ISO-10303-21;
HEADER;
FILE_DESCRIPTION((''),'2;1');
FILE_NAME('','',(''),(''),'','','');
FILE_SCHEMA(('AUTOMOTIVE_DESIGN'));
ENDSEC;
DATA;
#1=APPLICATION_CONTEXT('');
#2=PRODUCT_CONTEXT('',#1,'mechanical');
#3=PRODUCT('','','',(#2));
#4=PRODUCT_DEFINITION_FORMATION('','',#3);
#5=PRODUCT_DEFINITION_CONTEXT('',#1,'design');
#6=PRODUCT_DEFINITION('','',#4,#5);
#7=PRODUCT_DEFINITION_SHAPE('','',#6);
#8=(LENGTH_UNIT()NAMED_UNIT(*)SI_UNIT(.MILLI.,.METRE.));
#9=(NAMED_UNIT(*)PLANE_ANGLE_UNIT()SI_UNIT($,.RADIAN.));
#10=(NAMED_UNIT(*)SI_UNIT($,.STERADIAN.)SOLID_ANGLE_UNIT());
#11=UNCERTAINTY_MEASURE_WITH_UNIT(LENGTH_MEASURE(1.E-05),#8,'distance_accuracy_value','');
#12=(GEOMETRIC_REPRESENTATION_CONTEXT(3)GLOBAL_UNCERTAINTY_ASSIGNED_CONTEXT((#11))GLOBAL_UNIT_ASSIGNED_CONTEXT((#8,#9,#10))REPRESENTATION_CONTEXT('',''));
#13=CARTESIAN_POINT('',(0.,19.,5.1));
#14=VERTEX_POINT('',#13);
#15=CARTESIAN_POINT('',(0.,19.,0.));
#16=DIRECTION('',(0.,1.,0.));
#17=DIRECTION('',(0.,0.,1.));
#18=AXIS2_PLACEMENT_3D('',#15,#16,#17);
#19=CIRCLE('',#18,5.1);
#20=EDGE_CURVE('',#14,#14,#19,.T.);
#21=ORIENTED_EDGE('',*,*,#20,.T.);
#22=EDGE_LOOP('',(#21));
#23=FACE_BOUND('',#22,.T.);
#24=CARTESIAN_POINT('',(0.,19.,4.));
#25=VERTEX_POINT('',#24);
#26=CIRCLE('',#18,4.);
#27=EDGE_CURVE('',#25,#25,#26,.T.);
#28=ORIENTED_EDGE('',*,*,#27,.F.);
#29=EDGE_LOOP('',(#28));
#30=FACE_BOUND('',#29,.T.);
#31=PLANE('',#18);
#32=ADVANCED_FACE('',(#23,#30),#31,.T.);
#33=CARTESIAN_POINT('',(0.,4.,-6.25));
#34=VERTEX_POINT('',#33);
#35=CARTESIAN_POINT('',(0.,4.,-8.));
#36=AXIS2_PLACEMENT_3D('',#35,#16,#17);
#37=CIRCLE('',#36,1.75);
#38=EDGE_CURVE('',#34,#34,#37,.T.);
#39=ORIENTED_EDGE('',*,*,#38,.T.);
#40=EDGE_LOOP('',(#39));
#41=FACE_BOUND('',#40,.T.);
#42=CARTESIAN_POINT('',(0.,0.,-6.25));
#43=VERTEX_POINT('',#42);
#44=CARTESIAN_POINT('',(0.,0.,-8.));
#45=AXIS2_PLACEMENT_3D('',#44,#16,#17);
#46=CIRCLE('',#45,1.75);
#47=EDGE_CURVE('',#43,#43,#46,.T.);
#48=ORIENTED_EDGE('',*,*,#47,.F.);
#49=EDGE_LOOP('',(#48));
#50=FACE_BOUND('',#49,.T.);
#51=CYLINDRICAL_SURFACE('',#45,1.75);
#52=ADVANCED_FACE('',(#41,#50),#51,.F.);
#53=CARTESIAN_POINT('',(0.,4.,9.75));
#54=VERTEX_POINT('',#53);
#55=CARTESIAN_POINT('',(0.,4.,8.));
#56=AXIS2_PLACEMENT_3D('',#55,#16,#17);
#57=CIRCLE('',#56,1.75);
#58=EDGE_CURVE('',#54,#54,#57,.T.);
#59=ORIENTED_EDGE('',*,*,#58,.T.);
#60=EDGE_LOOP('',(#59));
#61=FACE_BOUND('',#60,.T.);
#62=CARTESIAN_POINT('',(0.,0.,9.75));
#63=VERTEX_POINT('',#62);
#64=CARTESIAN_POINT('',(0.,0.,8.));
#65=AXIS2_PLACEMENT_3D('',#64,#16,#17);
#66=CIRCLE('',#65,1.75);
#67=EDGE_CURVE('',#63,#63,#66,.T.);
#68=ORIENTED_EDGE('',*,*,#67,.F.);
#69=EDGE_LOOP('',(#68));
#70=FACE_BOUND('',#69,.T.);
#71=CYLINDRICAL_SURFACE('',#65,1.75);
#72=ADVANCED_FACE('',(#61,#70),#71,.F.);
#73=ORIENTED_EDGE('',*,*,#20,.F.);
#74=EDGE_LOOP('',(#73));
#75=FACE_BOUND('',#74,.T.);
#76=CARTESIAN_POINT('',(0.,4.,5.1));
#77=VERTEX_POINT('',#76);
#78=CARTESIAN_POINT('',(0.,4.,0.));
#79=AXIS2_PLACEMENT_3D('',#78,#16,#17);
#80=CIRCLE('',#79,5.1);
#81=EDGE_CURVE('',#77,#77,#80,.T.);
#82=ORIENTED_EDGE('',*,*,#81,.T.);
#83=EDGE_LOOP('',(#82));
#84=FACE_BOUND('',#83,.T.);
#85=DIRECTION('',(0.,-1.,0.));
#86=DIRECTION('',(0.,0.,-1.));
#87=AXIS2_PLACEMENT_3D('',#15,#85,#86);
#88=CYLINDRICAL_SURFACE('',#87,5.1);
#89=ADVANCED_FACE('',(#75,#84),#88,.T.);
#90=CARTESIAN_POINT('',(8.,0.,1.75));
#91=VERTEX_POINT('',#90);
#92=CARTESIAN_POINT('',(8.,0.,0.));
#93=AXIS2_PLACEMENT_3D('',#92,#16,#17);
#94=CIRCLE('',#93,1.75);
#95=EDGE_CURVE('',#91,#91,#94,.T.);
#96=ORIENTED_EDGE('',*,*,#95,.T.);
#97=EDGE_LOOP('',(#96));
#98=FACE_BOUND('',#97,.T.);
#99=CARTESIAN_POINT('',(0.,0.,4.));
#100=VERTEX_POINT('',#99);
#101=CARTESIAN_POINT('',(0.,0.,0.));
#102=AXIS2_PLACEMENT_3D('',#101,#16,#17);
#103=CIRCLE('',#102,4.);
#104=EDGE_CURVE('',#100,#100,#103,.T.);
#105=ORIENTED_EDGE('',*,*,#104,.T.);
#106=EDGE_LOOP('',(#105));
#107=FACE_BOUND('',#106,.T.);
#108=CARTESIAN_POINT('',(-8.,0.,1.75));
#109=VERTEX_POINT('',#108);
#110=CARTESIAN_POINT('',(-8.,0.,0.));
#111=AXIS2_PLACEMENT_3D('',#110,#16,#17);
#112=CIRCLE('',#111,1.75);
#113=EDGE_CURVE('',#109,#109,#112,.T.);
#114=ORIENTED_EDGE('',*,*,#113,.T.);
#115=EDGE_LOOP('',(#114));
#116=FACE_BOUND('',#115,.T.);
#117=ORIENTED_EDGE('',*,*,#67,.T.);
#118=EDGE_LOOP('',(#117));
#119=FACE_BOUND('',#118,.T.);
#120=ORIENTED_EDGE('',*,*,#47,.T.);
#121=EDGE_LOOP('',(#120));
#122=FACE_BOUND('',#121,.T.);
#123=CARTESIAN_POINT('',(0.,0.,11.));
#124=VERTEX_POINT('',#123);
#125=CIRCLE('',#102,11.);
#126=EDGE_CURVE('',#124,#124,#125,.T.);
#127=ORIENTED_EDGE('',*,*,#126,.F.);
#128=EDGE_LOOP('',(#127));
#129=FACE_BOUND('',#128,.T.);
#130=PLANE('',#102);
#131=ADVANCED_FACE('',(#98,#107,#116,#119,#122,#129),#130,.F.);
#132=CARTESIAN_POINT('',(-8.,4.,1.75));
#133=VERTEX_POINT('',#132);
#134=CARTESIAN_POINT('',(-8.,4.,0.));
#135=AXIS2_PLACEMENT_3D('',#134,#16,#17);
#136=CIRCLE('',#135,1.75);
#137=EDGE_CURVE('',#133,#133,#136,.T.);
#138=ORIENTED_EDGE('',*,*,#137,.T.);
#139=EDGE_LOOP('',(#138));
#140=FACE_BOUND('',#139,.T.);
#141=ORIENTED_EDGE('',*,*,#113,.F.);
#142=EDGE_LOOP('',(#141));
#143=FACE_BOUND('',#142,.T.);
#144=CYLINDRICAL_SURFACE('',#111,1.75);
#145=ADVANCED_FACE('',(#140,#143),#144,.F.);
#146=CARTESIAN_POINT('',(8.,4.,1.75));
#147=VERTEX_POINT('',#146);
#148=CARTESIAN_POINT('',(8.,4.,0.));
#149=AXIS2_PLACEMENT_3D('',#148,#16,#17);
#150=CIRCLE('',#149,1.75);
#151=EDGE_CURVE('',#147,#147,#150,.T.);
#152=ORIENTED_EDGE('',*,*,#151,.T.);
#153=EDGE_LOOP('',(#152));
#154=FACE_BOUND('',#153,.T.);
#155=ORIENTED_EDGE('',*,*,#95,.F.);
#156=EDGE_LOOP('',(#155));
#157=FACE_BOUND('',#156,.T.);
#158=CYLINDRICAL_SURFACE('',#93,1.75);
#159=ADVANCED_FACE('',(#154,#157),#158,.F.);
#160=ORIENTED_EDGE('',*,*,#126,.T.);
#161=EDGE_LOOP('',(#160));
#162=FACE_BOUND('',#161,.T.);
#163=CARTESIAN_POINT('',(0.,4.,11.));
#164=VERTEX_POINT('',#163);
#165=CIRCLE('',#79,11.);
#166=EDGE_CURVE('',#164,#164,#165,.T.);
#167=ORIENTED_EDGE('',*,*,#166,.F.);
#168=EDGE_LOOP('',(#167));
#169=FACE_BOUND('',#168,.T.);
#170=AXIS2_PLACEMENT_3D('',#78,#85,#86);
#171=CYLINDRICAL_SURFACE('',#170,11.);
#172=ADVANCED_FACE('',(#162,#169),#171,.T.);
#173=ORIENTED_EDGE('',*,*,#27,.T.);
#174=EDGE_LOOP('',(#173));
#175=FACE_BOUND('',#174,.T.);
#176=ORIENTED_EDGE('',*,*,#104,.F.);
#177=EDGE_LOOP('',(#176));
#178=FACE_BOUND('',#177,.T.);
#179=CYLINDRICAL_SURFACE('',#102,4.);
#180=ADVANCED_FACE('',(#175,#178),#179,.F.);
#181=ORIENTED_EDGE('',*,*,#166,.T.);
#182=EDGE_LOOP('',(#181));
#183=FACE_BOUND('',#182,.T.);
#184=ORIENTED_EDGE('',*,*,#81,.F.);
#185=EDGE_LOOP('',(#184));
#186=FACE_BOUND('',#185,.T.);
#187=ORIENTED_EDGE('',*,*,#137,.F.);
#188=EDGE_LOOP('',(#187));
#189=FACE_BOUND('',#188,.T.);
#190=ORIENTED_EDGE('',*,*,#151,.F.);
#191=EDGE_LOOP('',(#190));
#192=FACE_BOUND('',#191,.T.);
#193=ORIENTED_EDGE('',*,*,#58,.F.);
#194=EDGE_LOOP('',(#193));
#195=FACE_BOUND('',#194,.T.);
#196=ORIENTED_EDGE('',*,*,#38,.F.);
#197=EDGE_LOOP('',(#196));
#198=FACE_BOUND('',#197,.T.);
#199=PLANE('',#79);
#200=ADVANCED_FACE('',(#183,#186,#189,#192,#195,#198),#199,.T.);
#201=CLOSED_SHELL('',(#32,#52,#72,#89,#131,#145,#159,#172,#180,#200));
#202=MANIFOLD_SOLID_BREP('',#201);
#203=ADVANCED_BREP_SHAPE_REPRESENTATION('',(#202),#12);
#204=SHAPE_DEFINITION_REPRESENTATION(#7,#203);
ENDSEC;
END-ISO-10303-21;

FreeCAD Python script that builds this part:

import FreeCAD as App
import Part
import Sketcher

V = App.Vector

doc = App.newDocument("Part")
body = doc.addObject("PartDesign::Body", "Body")

sketch1 = body.newObject("Sketcher::SketchObject", "Sketch")
sketch1.AttachmentSupport = (doc.getObject("XZ_Plane"), [""])
sketch1.MapMode = "FlatFace"
sketch1.addGeometry(Part.Circle(V(0, 0, 0), V(0, 0, 1), 11), False)
sketch1.addConstraint([
    Sketcher.Constraint("Coincident", 0, 3, -1, 1),
    Sketcher.Constraint("Diameter", 0, 22.0),
])
pad1 = body.newObject("PartDesign::Pad", "Pad")
pad1.Profile = sketch1
pad1.Length = 4
pad1.Reversed = True

sketch2 = body.newObject("Sketcher::SketchObject", "Sketch001")
sketch2.AttachmentSupport = (doc.getObject("XZ_Plane"), [""])
sketch2.MapMode = "FlatFace"
sketch2.AttachmentOffset = App.Placement(V(0, 0, -4), App.Rotation())
sketch2.addGeometry(Part.Circle(V(0, 0, 0), V(0, 0, 1), 5), False)
sketch2.addConstraint([
    Sketcher.Constraint("Coincident", 0, 3, -1, 1),
    Sketcher.Constraint("Diameter", 0, 10.2),
])
pad2 = body.newObject("PartDesign::Pad", "Pad001")
pad2.Profile = sketch2
pad2.Length = 15
pad2.Reversed = True

sketch3 = body.newObject("Sketcher::SketchObject", "Sketch002")
sketch3.AttachmentSupport = (doc.getObject("XZ_Plane"), [""])
sketch3.MapMode = "FlatFace"
sketch3.AttachmentOffset = App.Placement(V(0, 0, -19), App.Rotation())
sketch3.addGeometry(Part.Circle(V(0, 0, 0), V(0, 0, 1), 4), False)
sketch3.addConstraint([
    Sketcher.Constraint("Coincident", 0, 3, -1, 1),
    Sketcher.Constraint("Diameter", 0, 8.0),
])
pocket1 = body.newObject("PartDesign::Pocket", "Pocket")
pocket1.Profile = sketch3
pocket1.Type = "ThroughAll"
pocket1.Reversed = True

sketch4 = body.newObject("Sketcher::SketchObject", "Sketch003")
sketch4.AttachmentSupport = (doc.getObject("XZ_Plane"), [""])
sketch4.MapMode = "FlatFace"
sketch4.AttachmentOffset = App.Placement(V(0, 0, -4), App.Rotation())
sketch4.addGeometry([
    Part.Circle(V(0, -8, 0), V(0, 0, 1), 1.8),
    Part.Circle(V(0, 8, 0), V(0, 0, 1), 1.8),
    Part.Circle(V(-8, 0, 0), V(0, 0, 1), 1.8),
    Part.Circle(V(8, 0, 0), V(0, 0, 1), 1.8),
], False)
sketch4.addConstraint([
    Sketcher.Constraint("Equal", 0, 1),
    Sketcher.Constraint("Equal", 1, 2),
    Sketcher.Constraint("Equal", 2, 3),
    Sketcher.Constraint("Symmetric", 0, 3, 1, 3, -1, 1),
    Sketcher.Constraint("Symmetric", 2, 3, 3, 3, -1, 1),
    Sketcher.Constraint("PointOnObject", 0, 3, -2),
    Sketcher.Constraint("PointOnObject", 2, 3, -1),
    Sketcher.Constraint("Diameter", 0, 3.5),
    Sketcher.Constraint("DistanceY", 0, 3, -1, 1, 8.0),
    Sketcher.Constraint("DistanceX", 2, 3, -1, 1, 8.0),
])
pocket2 = body.newObject("PartDesign::Pocket", "Pocket001")
pocket2.Profile = sketch4
pocket2.Type = "ThroughAll"
pocket2.Reversed = True

doc.recompute()
